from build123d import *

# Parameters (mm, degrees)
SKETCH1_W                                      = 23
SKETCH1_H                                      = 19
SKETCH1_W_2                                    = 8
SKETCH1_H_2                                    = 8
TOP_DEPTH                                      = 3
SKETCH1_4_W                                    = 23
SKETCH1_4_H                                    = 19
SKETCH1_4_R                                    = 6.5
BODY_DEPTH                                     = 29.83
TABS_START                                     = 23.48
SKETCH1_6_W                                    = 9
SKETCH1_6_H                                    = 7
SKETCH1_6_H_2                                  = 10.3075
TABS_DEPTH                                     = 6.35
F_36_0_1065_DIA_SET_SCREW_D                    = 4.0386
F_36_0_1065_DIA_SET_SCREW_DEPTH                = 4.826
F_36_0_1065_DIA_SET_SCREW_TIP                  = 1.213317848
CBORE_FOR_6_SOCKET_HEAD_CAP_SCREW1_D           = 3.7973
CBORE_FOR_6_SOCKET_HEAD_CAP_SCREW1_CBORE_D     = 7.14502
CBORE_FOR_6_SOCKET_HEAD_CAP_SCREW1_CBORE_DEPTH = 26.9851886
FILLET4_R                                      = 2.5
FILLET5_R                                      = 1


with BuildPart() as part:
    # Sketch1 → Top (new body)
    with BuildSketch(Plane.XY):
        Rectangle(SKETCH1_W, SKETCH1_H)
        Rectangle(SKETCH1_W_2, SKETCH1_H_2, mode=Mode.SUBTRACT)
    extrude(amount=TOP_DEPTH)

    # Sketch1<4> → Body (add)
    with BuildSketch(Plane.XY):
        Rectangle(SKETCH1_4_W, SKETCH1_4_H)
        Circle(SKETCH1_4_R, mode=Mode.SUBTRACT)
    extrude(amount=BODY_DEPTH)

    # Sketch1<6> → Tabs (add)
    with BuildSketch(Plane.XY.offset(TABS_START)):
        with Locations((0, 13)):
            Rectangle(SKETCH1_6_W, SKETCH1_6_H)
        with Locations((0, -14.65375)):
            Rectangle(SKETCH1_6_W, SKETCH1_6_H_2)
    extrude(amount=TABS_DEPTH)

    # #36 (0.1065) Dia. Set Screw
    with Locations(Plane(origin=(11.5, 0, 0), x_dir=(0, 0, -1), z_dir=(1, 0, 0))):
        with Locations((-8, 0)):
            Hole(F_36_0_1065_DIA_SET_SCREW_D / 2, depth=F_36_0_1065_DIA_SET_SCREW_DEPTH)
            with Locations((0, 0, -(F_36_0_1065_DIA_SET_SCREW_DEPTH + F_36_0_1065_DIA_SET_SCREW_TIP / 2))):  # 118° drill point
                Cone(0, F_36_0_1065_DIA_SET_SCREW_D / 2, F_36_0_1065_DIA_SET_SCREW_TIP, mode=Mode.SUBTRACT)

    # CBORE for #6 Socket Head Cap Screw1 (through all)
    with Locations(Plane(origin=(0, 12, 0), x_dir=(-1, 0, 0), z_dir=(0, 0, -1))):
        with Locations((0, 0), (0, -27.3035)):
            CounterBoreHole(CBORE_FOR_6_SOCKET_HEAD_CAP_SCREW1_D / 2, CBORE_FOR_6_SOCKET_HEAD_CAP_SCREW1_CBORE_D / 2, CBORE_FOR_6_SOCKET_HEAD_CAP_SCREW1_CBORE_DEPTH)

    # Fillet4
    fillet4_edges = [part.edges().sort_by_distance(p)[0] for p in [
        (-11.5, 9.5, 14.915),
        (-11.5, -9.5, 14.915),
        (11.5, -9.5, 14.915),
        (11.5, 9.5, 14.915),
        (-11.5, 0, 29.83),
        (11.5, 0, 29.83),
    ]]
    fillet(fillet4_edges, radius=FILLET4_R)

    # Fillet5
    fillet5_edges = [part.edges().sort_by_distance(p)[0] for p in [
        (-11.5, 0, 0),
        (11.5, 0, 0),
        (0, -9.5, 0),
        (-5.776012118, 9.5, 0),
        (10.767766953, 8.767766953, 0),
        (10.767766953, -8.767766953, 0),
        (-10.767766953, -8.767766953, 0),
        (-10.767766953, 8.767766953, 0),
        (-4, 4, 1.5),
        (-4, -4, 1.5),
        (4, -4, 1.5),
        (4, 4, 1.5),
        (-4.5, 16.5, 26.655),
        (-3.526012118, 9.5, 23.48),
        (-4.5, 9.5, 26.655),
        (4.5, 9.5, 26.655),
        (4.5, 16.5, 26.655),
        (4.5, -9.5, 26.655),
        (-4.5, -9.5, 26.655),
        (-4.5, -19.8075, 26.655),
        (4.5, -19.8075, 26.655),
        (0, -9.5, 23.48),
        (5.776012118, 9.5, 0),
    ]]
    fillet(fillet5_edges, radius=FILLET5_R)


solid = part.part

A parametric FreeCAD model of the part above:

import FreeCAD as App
import Part
import Sketcher

V = App.Vector
Q = App.Units.Quantity


def edges_at(feature, points):
    """Names of the edges that pass closest to the given points."""
    edges = feature.Shape.Edges
    near = lambda p: min(range(len(edges)), key=lambda i: edges[i].distToShape(Part.Vertex(*p))[0])
    return sorted({f"Edge{near(p) + 1}" for p in points})

doc = App.newDocument("Part")
body = doc.addObject("PartDesign::Body", "Body")

# Sketch on XY plane
sketch1 = doc.addObject("Sketcher::SketchObject", "Sketch")
body.addObject(sketch1)
sketch1.AttachmentSupport = (doc.XY_Plane, [""])
sketch1.MapMode = "FlatFace"
sketch1.addGeometry([
    Part.LineSegment(V(-12, 10, 0), V(-12, -10, 0)),  # 0
    Part.LineSegment(V(-12, -10, 0), V(12, -10, 0)),  # 1
    Part.LineSegment(V(12, -10, 0), V(12, 10, 0)),  # 2
    Part.LineSegment(V(12, 10, 0), V(-12, 10, 0)),  # 3
    Part.LineSegment(V(4, -4, 0), V(-4, -4, 0)),  # 4
    Part.LineSegment(V(-4, -4, 0), V(-4, 4, 0)),  # 5
    Part.LineSegment(V(-4, 4, 0), V(4, 4, 0)),  # 6
    Part.LineSegment(V(4, 4, 0), V(4, -4, 0)),  # 7
], False)
sketch1.addConstraint([
    Sketcher.Constraint("Coincident", 0, 2, 1, 1),
    Sketcher.Constraint("Coincident", 1, 2, 2, 1),
    Sketcher.Constraint("Coincident", 2, 2, 3, 1),
    Sketcher.Constraint("Coincident", 3, 2, 0, 1),
    Sketcher.Constraint("Coincident", 4, 2, 5, 1),
    Sketcher.Constraint("Coincident", 5, 2, 6, 1),
    Sketcher.Constraint("Coincident", 6, 2, 7, 1),
    Sketcher.Constraint("Coincident", 7, 2, 4, 1),
    Sketcher.Constraint("Vertical", 0),
    Sketcher.Constraint("Horizontal", 1),
    Sketcher.Constraint("Vertical", 2),
    Sketcher.Constraint("Horizontal", 3),
    Sketcher.Constraint("Horizontal", 4),
    Sketcher.Constraint("Vertical", 5),
    Sketcher.Constraint("Horizontal", 6),
    Sketcher.Constraint("Vertical", 7),
    Sketcher.Constraint("Symmetric", 0, 2, 2, 2, -1, 1),
    Sketcher.Constraint("Symmetric", 4, 2, 6, 2, -1, 1),
    Sketcher.Constraint("Equal", 6, 5),
    Sketcher.Constraint("DistanceX", 1, 1, 1, 2, Q("23 mm")),
    Sketcher.Constraint("DistanceX", 4, 2, 4, 1, Q("8 mm")),
    Sketcher.Constraint("DistanceY", 0, 2, 0, 1, Q("19 mm")),
])
pad1 = doc.addObject("PartDesign::Pad", "Pad")
body.addObject(pad1)
pad1.Profile = sketch1
pad1.Length = 3

# Sketch on XY plane
sketch2 = doc.addObject("Sketcher::SketchObject", "Sketch001")
body.addObject(sketch2)
sketch2.AttachmentSupport = (doc.XY_Plane, [""])
sketch2.MapMode = "FlatFace"
sketch2.addGeometry([
    Part.LineSegment(V(-12, 10, 0), V(-12, -10, 0)),  # 0
    Part.LineSegment(V(-12, -10, 0), V(12, -10, 0)),  # 1
    Part.LineSegment(V(12, -10, 0), V(12, 10, 0)),  # 2
    Part.LineSegment(V(12, 10, 0), V(-12, 10, 0)),  # 3
    Part.Circle(V(0, 0, 0), V(0, 0, 1), 6),  # 4
], False)
sketch2.addConstraint([
    Sketcher.Constraint("Coincident", 0, 2, 1, 1),
    Sketcher.Constraint("Coincident", 1, 2, 2, 1),
    Sketcher.Constraint("Coincident", 2, 2, 3, 1),
    Sketcher.Constraint("Coincident", 3, 2, 0, 1),
    Sketcher.Constraint("Vertical", 0),
    Sketcher.Constraint("Horizontal", 1),
    Sketcher.Constraint("Vertical", 2),
    Sketcher.Constraint("Horizontal", 3),
    Sketcher.Constraint("Coincident", 4, 3, -1, 1),
    Sketcher.Constraint("Symmetric", 0, 2, 2, 2, -1, 1),
    Sketcher.Constraint("Diameter", 4, Q("13 mm")),
    Sketcher.Constraint("DistanceX", 1, 1, 1, 2, Q("23 mm")),
    Sketcher.Constraint("DistanceY", 0, 2, 0, 1, Q("19 mm")),
])
pad2 = doc.addObject("PartDesign::Pad", "Pad001")
body.addObject(pad2)
pad2.Profile = sketch2
pad2.Length = 29.83

# Sketch on XY plane
sketch3 = doc.addObject("Sketcher::SketchObject", "Sketch002")
body.addObject(sketch3)
sketch3.AttachmentSupport = (doc.XY_Plane, [""])
sketch3.MapMode = "FlatFace"
sketch3.AttachmentOffset = App.Placement(V(0, 0, 23.48), App.Rotation())
sketch3.addGeometry([
    Part.LineSegment(V(-4, 16, 0), V(-4, 10, 0)),  # 0
    Part.LineSegment(V(-4, 10, 0), V(4, 10, 0)),  # 1
    Part.LineSegment(V(4, 10, 0), V(4, 16, 0)),  # 2
    Part.LineSegment(V(4, 16, 0), V(-4, 16, 0)),  # 3
    Part.LineSegment(V(-4, -10, 0), V(-4, -20, 0)),  # 4
    Part.LineSegment(V(-4, -20, 0), V(4, -20, 0)),  # 5
    Part.LineSegment(V(4, -20, 0), V(4, -10, 0)),  # 6
    Part.LineSegment(V(4, -10, 0), V(-4, -10, 0)),  # 7
], False)
sketch3.addConstraint([
    Sketcher.Constraint("Coincident", 0, 2, 1, 1),
    Sketcher.Constraint("Coincident", 1, 2, 2, 1),
    Sketcher.Constraint("Coincident", 2, 2, 3, 1),
    Sketcher.Constraint("Coincident", 3, 2, 0, 1),
    Sketcher.Constraint("Coincident", 4, 2, 5, 1),
    Sketcher.Constraint("Coincident", 5, 2, 6, 1),
    Sketcher.Constraint("Coincident", 6, 2, 7, 1),
    Sketcher.Constraint("Coincident", 7, 2, 4, 1),
    Sketcher.Constraint("Vertical", 0),
    Sketcher.Constraint("Horizontal", 1),
    Sketcher.Constraint("Vertical", 2),
    Sketcher.Constraint("Horizontal", 3),
    Sketcher.Constraint("Vertical", 4),
    Sketcher.Constraint("Horizontal", 5),
    Sketcher.Constraint("Vertical", 6),
    Sketcher.Constraint("Horizontal", 7),
    Sketcher.Constraint("Symmetric", 0, 2, 6, 2, -1, 1),
    Sketcher.Constraint("Vertical", 3, 2, 4, 2),
    Sketcher.Constraint("Vertical", 2, 2, 5, 2),
    Sketcher.Constraint("DistanceX", 1, 1, 1, 2, Q("9 mm")),
    Sketcher.Constraint("DistanceY", 0, 2, 0, 1, Q("7 mm")),
    Sketcher.Constraint("DistanceY", 6, 2, 1, 2, Q("19 mm")),
    Sketcher.Constraint("DistanceY", 4, 2, 4, 1, Q("10.3075 mm")),
])
pad3 = doc.addObject("PartDesign::Pad", "Pad002")
body.addObject(pad3)
pad3.Profile = sketch3
pad3.Length = 6.35

# Sketch on YZ plane
sketch4 = doc.addObject("Sketcher::SketchObject", "Sketch003")
body.addObject(sketch4)
sketch4.AttachmentSupport = (doc.YZ_Plane, [""])
sketch4.MapMode = "FlatFace"
sketch4.AttachmentOffset = App.Placement(V(0, 0, 11.5), App.Rotation())
sketch4.addGeometry(Part.Circle(V(0, 8, 0), V(0, 0, 1), 2), False)
sketch4.addConstraint([
    Sketcher.Constraint("PointOnObject", 0, 3, -2),
    Sketcher.Constraint("DistanceY", -1, 1, 0, 3, Q("8 mm")),
    Sketcher.Constraint("Diameter", 0, Q("4.0386 mm")),
])
doc.recompute()
hole = doc.addObject("PartDesign::Hole", "Hole")
body.addObject(hole)
hole.Profile = sketch4
hole.ThreadType = "None"
hole.Diameter = 4.0386
hole.DepthType = "Dimension"
hole.Depth = 4.826
hole.DrillPoint = "Angled"
hole.DrillPointAngle = 118

# Sketch on XY plane
sketch5 = doc.addObject("Sketcher::SketchObject", "Sketch004")
body.addObject(sketch5)
sketch5.AttachmentSupport = (doc.XY_Plane, [""])
sketch5.MapMode = "FlatFace"
sketch5.addGeometry([
    Part.Circle(V(0, 12, 0), V(0, 0, 1), 1.9),
    Part.Circle(V(0, -15.3, 0), V(0, 0, 1), 1.9),
], False)
sketch5.addConstraint([
    Sketcher.Constraint("Equal", 0, 1),
    Sketcher.Constraint("PointOnObject", 0, 3, -2),
    Sketcher.Constraint("PointOnObject", 1, 3, -2),
    Sketcher.Constraint("DistanceY", -1, 1, 0, 3, Q("12 mm")),
    Sketcher.Constraint("Diameter", 0, Q("3.7973 mm")),
    Sketcher.Constraint("DistanceY", 1, 3, -1, 1, Q("15.3035 mm")),
])
doc.recompute()
hole2 = doc.addObject("PartDesign::Hole", "Hole001")
body.addObject(hole2)
hole2.Profile = sketch5
hole2.ThreadType = "None"
hole2.Diameter = 3.7973
hole2.DepthType = "ThroughAll"
hole2.HoleCutType = "Counterbore"
hole2.HoleCutDiameter = 7.14502
hole2.HoleCutDepth = 26.985189
hole2.Reversed = True
doc.recompute()

fillet = doc.addObject("PartDesign::Fillet", "Fillet")
body.addObject(fillet)
fillet.Base = (hole2, edges_at(hole2, [
    (-11.5, 9.5, 14.915),
    (-11.5, -9.5, 14.915),
    (11.5, -9.5, 14.915),
    (11.5, 9.5, 14.915),
    (-11.5, 0, 29.83),
    (11.5, 0, 29.83),
]))
fillet.Radius = 2.5
doc.recompute()

fillet2 = doc.addObject("PartDesign::Fillet", "Fillet001")
body.addObject(fillet2)
fillet2.Base = (fillet, edges_at(fillet, [
    (-11.5, 0, 0),
    (11.5, 0, 0),
    (0, -9.5, 0),
    (-5.776, 9.5, 0),
    (10.768, 8.768, 0),
    (10.768, -8.768, 0),
    (-10.768, -8.768, 0),
    (-10.768, 8.768, 0),
    (-4, 4, 1.5),
    (-4, -4, 1.5),
    (4, -4, 1.5),
    (4, 4, 1.5),
    (-4.5, 16.5, 26.655),
    (-3.526, 9.5, 23.48),
    (-4.5, 9.5, 26.655),
    (4.5, 9.5, 26.655),
    (4.5, 16.5, 26.655),
    (4.5, -9.5, 26.655),
    (-4.5, -9.5, 26.655),
    (-4.5, -19.808, 26.655),
    (4.5, -19.808, 26.655),
    (0, -9.5, 23.48),
    (5.776, 9.5, 0),
]))
fillet2.Radius = 1

doc.recompute()
